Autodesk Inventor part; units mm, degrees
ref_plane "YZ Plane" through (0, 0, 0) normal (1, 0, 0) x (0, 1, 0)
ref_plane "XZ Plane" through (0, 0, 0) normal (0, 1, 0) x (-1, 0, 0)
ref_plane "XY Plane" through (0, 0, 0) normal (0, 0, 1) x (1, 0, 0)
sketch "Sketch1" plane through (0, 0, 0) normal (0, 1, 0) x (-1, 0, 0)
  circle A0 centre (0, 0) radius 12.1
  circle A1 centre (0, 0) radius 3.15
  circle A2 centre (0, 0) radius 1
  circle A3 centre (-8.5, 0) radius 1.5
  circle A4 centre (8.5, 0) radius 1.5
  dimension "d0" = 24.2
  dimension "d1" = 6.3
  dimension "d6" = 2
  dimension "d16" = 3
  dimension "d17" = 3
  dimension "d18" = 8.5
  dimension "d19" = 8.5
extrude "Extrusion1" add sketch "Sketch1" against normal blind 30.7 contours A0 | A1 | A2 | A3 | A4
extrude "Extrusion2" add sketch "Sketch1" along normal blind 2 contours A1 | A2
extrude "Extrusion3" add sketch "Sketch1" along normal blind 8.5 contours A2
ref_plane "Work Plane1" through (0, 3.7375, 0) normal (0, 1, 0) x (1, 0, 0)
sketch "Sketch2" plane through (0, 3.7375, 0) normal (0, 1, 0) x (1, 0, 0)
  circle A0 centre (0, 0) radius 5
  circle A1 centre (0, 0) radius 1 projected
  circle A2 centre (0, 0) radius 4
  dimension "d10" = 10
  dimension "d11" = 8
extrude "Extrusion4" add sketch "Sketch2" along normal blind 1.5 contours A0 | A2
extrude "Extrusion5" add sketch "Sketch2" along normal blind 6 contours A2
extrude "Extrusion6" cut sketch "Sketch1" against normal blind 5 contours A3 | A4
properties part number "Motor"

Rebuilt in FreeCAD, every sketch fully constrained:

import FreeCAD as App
import Part
import Sketcher

V = App.Vector

doc = App.newDocument("Part")
body = doc.addObject("PartDesign::Body", "Body")

# Sketch on XZ plane
sketch1 = doc.addObject("Sketcher::SketchObject", "Sketch")
body.addObject(sketch1)
sketch1.AttachmentSupport = (doc.XZ_Plane, [""])
sketch1.MapMode = "FlatFace"
sketch1.addGeometry(Part.Circle(V(0, 0, 0), V(0, 0, 1), 12.1), False)
sketch1.addConstraint(Sketcher.Constraint("Coincident", 0, 3, -1, 1))
sketch1.addConstraint(Sketcher.Constraint("Diameter", 0, 24.2))
pad1 = doc.addObject("PartDesign::Pad", "Pad")
body.addObject(pad1)
pad1.Profile = sketch1
pad1.Length = 30.7

# Sketch on XZ plane
sketch2 = doc.addObject("Sketcher::SketchObject", "Sketch001")
body.addObject(sketch2)
sketch2.AttachmentSupport = (doc.XZ_Plane, [""])
sketch2.MapMode = "FlatFace"
sketch2.addGeometry(Part.Circle(V(0, 0, 0), V(0, 0, 1), 3.15), False)
sketch2.addConstraint(Sketcher.Constraint("Coincident", 0, 3, -1, 1))
sketch2.addConstraint(Sketcher.Constraint("Diameter", 0, 6.3))
pad2 = doc.addObject("PartDesign::Pad", "Pad001")
body.addObject(pad2)
pad2.Profile = sketch2
pad2.Length = 2
pad2.Reversed = True

# Sketch on XZ plane
sketch3 = doc.addObject("Sketcher::SketchObject", "Sketch002")
body.addObject(sketch3)
sketch3.AttachmentSupport = (doc.XZ_Plane, [""])
sketch3.MapMode = "FlatFace"
sketch3.addGeometry(Part.Circle(V(0, 0, 0), V(0, 0, 1), 1), False)
sketch3.addConstraint(Sketcher.Constraint("Coincident", 0, 3, -1, 1))
sketch3.addConstraint(Sketcher.Constraint("Diameter", 0, 2.0))
pad3 = doc.addObject("PartDesign::Pad", "Pad002")
body.addObject(pad3)
pad3.Profile = sketch3
pad3.Length = 8.5
pad3.Reversed = True

# Sketch on XZ plane
sketch4 = doc.addObject("Sketcher::SketchObject", "Sketch003")
body.addObject(sketch4)
sketch4.AttachmentSupport = (doc.XZ_Plane, [""])
sketch4.MapMode = "FlatFace"
sketch4.AttachmentOffset = App.Placement(V(0, 0, -3.7375), App.Rotation())
sketch4.addGeometry(Part.Circle(V(0, 0, 0), V(0, 0, 1), 5), False)
sketch4.addGeometry(Part.Circle(V(0, 0, 0), V(0, 0, 1), 1), False)
sketch4.addConstraint(Sketcher.Constraint("Coincident", 0, 3, -1, 1))
sketch4.addConstraint(Sketcher.Constraint("Coincident", 1, 3, -1, 1))
sketch4.addConstraint(Sketcher.Constraint("Diameter", 0, 10.0))
sketch4.addConstraint(Sketcher.Constraint("Diameter", 1, 2.0))
pad4 = doc.addObject("PartDesign::Pad", "Pad003")
body.addObject(pad4)
pad4.Profile = sketch4
pad4.Length = 1.5
pad4.Reversed = True

# Sketch on XZ plane
sketch5 = doc.addObject("Sketcher::SketchObject", "Sketch004")
body.addObject(sketch5)
sketch5.AttachmentSupport = (doc.XZ_Plane, [""])
sketch5.MapMode = "FlatFace"
sketch5.AttachmentOffset = App.Placement(V(0, 0, -3.7375), App.Rotation())
sketch5.addGeometry(Part.Circle(V(0, 0, 0), V(0, 0, 1), 4), False)
sketch5.addGeometry(Part.Circle(V(0, 0, 0), V(0, 0, 1), 1), False)
sketch5.addConstraint(Sketcher.Constraint("Coincident", 0, 3, -1, 1))
sketch5.addConstraint(Sketcher.Constraint("Coincident", 1, 3, -1, 1))
sketch5.addConstraint(Sketcher.Constraint("Diameter", 0, 8.0))
sketch5.addConstraint(Sketcher.Constraint("Diameter", 1, 2.0))
pad5 = doc.addObject("PartDesign::Pad", "Pad004")
body.addObject(pad5)
pad5.Profile = sketch5
pad5.Length = 6
pad5.Reversed = True

# Sketch on XZ plane
sketch6 = doc.addObject("Sketcher::SketchObject", "Sketch005")
body.addObject(sketch6)
sketch6.AttachmentSupport = (doc.XZ_Plane, [""])
sketch6.MapMode = "FlatFace"
sketch6.addGeometry(Part.Circle(V(8.5, 0, 0), V(0, 0, 1), 1.5), False)
sketch6.addGeometry(Part.Circle(V(-8.5, 0, 0), V(0, 0, 1), 1.5), False)
sketch6.addConstraint(Sketcher.Constraint("Equal", 0, 1))
sketch6.addConstraint(Sketcher.Constraint("Symmetric", 0, 3, 1, 3, -1, 1))
sketch6.addConstraint(Sketcher.Constraint("PointOnObject", 0, 3, -1))
sketch6.addConstraint(Sketcher.Constraint("Diameter", 0, 3.0))
sketch6.addConstraint(Sketcher.Constraint("DistanceX", -1, 1, 0, 3, 8.5))
pocket1 = doc.addObject("PartDesign::Pocket", "Pocket")
body.addObject(pocket1)
pocket1.Profile = sketch6
pocket1.Length = 5
pocket1.Reversed = True

doc.recompute()
